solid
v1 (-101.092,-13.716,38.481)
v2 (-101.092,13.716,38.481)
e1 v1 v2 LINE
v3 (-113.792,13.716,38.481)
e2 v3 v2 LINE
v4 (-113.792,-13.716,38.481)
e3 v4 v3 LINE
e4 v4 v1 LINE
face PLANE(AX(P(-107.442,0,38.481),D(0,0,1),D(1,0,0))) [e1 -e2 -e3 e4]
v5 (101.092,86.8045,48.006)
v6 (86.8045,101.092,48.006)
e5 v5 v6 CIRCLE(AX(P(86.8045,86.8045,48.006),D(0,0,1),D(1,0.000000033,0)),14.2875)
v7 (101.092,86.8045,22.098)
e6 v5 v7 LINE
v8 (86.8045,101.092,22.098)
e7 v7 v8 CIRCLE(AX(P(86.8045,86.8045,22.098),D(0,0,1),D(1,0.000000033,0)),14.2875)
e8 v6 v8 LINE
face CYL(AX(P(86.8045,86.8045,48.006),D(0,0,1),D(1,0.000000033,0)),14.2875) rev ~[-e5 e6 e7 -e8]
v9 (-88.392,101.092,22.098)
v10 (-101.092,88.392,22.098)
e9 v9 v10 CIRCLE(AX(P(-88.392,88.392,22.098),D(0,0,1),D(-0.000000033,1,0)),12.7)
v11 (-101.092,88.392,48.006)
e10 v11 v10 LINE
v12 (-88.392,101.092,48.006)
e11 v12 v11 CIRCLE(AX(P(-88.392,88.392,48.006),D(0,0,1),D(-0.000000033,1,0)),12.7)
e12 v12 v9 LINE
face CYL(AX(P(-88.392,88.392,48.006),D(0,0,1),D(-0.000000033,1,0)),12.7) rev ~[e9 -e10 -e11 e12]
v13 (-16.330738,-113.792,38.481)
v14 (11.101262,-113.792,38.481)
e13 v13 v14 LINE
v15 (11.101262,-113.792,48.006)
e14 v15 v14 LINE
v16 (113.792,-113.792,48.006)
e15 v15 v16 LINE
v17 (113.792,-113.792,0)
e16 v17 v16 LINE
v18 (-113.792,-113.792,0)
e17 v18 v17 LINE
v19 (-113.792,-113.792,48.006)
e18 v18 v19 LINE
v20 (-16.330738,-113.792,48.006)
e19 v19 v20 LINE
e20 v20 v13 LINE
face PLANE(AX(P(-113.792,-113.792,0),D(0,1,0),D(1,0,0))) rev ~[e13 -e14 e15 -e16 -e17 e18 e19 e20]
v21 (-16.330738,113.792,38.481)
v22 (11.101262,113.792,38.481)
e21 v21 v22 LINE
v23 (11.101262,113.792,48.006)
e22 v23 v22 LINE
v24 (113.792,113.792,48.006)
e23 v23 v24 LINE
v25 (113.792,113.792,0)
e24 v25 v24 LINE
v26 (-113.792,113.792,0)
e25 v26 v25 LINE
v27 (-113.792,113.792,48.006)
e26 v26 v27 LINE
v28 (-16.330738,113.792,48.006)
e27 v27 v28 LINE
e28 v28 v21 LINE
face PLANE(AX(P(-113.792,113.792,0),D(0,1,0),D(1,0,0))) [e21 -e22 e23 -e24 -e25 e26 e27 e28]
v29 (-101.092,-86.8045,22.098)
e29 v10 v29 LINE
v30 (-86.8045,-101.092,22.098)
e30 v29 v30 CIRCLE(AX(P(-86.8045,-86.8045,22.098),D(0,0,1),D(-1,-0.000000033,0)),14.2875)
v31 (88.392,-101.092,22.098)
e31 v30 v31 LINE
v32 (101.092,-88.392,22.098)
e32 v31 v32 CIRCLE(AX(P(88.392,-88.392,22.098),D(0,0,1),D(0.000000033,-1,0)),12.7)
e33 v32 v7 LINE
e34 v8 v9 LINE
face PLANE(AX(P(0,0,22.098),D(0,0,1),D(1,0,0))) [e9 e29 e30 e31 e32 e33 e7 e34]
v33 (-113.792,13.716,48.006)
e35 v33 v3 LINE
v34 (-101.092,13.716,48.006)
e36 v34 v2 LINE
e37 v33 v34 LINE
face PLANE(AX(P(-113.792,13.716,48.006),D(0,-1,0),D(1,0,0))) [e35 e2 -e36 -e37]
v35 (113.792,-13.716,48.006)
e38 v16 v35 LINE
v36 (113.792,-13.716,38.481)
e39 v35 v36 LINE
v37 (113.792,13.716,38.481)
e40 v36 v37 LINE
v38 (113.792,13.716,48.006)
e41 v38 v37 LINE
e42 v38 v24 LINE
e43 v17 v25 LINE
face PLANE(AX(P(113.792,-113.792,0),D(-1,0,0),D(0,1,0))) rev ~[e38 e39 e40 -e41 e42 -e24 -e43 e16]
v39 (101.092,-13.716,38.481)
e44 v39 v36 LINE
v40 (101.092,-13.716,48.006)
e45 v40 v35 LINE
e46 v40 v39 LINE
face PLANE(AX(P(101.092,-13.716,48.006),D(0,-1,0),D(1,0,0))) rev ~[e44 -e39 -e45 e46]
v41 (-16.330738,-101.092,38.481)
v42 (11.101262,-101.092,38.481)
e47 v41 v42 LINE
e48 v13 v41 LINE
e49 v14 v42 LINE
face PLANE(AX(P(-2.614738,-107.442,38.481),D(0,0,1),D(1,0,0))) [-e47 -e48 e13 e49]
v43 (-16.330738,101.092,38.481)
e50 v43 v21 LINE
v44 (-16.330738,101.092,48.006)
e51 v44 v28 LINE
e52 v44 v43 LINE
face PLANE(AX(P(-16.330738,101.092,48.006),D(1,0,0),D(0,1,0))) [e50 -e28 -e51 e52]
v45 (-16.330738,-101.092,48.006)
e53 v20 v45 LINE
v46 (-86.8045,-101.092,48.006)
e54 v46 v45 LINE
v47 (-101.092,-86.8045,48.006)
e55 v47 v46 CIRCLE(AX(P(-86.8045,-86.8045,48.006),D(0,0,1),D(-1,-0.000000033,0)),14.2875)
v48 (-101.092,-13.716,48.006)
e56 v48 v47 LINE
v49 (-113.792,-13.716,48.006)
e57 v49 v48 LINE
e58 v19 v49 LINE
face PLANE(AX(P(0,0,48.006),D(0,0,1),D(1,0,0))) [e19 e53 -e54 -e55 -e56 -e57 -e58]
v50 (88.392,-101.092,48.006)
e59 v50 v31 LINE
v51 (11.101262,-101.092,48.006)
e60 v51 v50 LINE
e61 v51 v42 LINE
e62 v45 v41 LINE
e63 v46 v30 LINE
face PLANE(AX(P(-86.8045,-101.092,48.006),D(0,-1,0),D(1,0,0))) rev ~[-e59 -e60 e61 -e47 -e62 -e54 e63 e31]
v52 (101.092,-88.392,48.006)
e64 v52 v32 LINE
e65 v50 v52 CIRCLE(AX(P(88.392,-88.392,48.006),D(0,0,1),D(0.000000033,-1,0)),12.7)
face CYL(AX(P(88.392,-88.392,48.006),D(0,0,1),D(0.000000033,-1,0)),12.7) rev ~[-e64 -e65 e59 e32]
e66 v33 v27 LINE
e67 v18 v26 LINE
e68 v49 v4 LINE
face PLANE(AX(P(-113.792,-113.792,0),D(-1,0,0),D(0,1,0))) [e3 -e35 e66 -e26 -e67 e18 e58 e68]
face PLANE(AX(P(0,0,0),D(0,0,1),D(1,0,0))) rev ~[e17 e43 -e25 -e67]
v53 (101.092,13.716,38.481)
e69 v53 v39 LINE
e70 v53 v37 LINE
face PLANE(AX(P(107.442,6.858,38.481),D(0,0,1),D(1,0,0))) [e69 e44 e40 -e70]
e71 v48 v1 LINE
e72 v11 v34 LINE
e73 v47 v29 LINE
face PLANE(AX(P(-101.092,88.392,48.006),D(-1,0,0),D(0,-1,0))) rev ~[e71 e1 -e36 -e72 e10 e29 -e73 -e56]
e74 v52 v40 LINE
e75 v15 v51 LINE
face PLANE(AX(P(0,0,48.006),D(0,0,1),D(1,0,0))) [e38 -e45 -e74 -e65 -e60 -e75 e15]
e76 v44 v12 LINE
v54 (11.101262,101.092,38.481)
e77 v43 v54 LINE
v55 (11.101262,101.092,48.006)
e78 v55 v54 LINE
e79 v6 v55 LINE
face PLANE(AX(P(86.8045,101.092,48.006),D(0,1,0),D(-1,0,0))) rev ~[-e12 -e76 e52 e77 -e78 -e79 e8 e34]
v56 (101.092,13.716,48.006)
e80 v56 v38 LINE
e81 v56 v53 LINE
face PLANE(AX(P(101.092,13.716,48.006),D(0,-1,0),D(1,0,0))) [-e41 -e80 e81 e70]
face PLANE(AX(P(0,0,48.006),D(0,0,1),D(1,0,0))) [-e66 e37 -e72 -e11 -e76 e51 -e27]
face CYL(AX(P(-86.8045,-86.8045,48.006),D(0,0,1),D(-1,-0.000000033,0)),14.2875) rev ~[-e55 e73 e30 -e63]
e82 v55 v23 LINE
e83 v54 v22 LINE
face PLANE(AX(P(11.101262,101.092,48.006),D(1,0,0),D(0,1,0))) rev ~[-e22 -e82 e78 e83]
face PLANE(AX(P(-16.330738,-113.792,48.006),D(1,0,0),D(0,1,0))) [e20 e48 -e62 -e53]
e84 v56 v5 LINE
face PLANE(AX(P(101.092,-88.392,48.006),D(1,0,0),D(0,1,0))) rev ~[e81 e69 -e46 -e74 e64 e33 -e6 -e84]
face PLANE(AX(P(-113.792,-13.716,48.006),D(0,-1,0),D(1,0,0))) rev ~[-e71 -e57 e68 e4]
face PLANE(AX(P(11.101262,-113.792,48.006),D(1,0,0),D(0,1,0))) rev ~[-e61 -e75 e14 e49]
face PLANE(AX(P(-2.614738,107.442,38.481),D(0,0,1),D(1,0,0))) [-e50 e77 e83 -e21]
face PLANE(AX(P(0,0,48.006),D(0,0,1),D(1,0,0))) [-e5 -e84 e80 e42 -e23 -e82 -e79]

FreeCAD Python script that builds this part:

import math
import FreeCAD as App
import Part
import Sketcher
from FreeCAD import Vector
Q = App.Units.Quantity

doc = App.newDocument("Part")
body = doc.addObject("PartDesign::Body", "Body")

# Sketch on XY plane
sketch1 = body.newObject("Sketcher::SketchObject", "Sketch")
sketch1.AttachmentSupport = (doc.getObject("XY_Plane"), [""])
sketch1.MapMode = "FlatFace"
sketch1.addGeometry(Part.LineSegment(Vector(-114, 114, 0), Vector(-114, -114, 0)), False)
sketch1.addGeometry(Part.LineSegment(Vector(-114, -114, 0), Vector(114, -114, 0)), False)
sketch1.addGeometry(Part.LineSegment(Vector(114, -114, 0), Vector(114, 114, 0)), False)
sketch1.addGeometry(Part.LineSegment(Vector(114, 114, 0), Vector(-114, 114, 0)), False)
sketch1.addConstraint(Sketcher.Constraint("Coincident", 0, 2, 1, 1))
sketch1.addConstraint(Sketcher.Constraint("Coincident", 1, 2, 2, 1))
sketch1.addConstraint(Sketcher.Constraint("Coincident", 2, 2, 3, 1))
sketch1.addConstraint(Sketcher.Constraint("Coincident", 3, 2, 0, 1))
sketch1.addConstraint(Sketcher.Constraint("Vertical", 0))
sketch1.addConstraint(Sketcher.Constraint("Horizontal", 1))
sketch1.addConstraint(Sketcher.Constraint("Vertical", 2))
sketch1.addConstraint(Sketcher.Constraint("Horizontal", 3))
sketch1.addConstraint(Sketcher.Constraint("Symmetric", 0, 2, 2, 2, -1, 1))
sketch1.addConstraint(Sketcher.Constraint("Equal", 3, 0))
sketch1.addConstraint(Sketcher.Constraint("DistanceX", 1, 1, 1, 2, Q("8.96 in")))
pad1 = body.newObject("PartDesign::Pad", "Pad")
pad1.Profile = sketch1
pad1.Length = Q("1.89 in")

# Sketch on XY plane
sketch2 = body.newObject("Sketcher::SketchObject", "Sketch001")
sketch2.AttachmentSupport = (doc.getObject("XY_Plane"), [""])
sketch2.MapMode = "FlatFace"
sketch2.AttachmentOffset = App.Placement(Vector(0, 0, 1.89 * 25.4), App.Rotation())
sketch2.addGeometry(Part.LineSegment(Vector(87, 101, 0), Vector(-88, 101, 0)), False)
sketch2.addGeometry(Part.ArcOfCircle(Part.Circle(Vector(-88, 88, 0), Vector(0, 0, 1), 13), math.radians(90), math.radians(180)), False)
sketch2.addGeometry(Part.LineSegment(Vector(-101, 88, 0), Vector(-101, -87, 0)), False)
sketch2.addGeometry(Part.ArcOfCircle(Part.Circle(Vector(-87, -87, 0), Vector(0, 0, 1), 14), math.radians(-180), math.radians(-90)), False)
sketch2.addGeometry(Part.LineSegment(Vector(-87, -101, 0), Vector(88, -101, 0)), False)
sketch2.addGeometry(Part.ArcOfCircle(Part.Circle(Vector(88, -88, 0), Vector(0, 0, 1), 13), math.radians(-90), math.radians(0)), False)
sketch2.addGeometry(Part.LineSegment(Vector(101, -88, 0), Vector(101, 87, 0)), False)
sketch2.addGeometry(Part.ArcOfCircle(Part.Circle(Vector(87, 87, 0), Vector(0, 0, 1), 14), math.radians(0), math.radians(90)), False)
sketch2.addConstraint(Sketcher.Constraint("Tangent", 0, 2, 1, 1))
sketch2.addConstraint(Sketcher.Constraint("Tangent", 1, 2, 2, 1))
sketch2.addConstraint(Sketcher.Constraint("Tangent", 2, 2, 3, 1))
sketch2.addConstraint(Sketcher.Constraint("Tangent", 3, 2, 4, 1))
sketch2.addConstraint(Sketcher.Constraint("Tangent", 4, 2, 5, 1))
sketch2.addConstraint(Sketcher.Constraint("Tangent", 5, 2, 6, 1))
sketch2.addConstraint(Sketcher.Constraint("Tangent", 6, 2, 7, 1))
sketch2.addConstraint(Sketcher.Constraint("Tangent", 7, 2, 0, 1))
sketch2.addConstraint(Sketcher.Constraint("Horizontal", 0))
sketch2.addConstraint(Sketcher.Constraint("Vertical", 2))
sketch2.addConstraint(Sketcher.Constraint("Horizontal", 4))
sketch2.addConstraint(Sketcher.Constraint("Vertical", 6))
sketch2.addConstraint(Sketcher.Constraint("Equal", 1, 5))
sketch2.addConstraint(Sketcher.Constraint("Equal", 3, 7))
sketch2.addConstraint(Sketcher.Constraint("Symmetric", 1, 3, 5, 3, -1, 1))
sketch2.addConstraint(Sketcher.Constraint("Equal", 4, 2))
sketch2.addConstraint(Sketcher.Constraint("Radius", 1, Q("0.5 in")))
sketch2.addConstraint(Sketcher.Constraint("Radius", 3, Q("0.5625 in")))
sketch2.addConstraint(Sketcher.Constraint("DistanceX", 1, 3, -1, 1, Q("3.48 in")))
pocket1 = body.newObject("PartDesign::Pocket", "Pocket")
pocket1.Profile = sketch2
pocket1.Length = Q("1.02 in")

# Sketch on XY plane
sketch3 = body.newObject("Sketcher::SketchObject", "Sketch002")
sketch3.AttachmentSupport = (doc.getObject("XY_Plane"), [""])
sketch3.MapMode = "FlatFace"
sketch3.AttachmentOffset = App.Placement(Vector(0, 0, 1.89 * 25.4), App.Rotation())
sketch3.addGeometry(Part.LineSegment(Vector(-114, 14, 0), Vector(-114, -14, 0)), False)
sketch3.addGeometry(Part.LineSegment(Vector(-114, -14, 0), Vector(-101, -14, 0)), False)
sketch3.addGeometry(Part.LineSegment(Vector(-101, -14, 0), Vector(-101, 14, 0)), False)
sketch3.addGeometry(Part.LineSegment(Vector(-101, 14, 0), Vector(-114, 14, 0)), False)
sketch3.addGeometry(Part.LineSegment(Vector(-16, 114, 0), Vector(-16, 101, 0)), False)
sketch3.addGeometry(Part.LineSegment(Vector(-16, 101, 0), Vector(11, 101, 0)), False)
sketch3.addGeometry(Part.LineSegment(Vector(11, 101, 0), Vector(11, 114, 0)), False)
sketch3.addGeometry(Part.LineSegment(Vector(11, 114, 0), Vector(-16, 114, 0)), False)
sketch3.addGeometry(Part.LineSegment(Vector(101, 14, 0), Vector(101, -14, 0)), False)
sketch3.addGeometry(Part.LineSegment(Vector(101, -14, 0), Vector(114, -14, 0)), False)
sketch3.addGeometry(Part.LineSegment(Vector(114, -14, 0), Vector(114, 14, 0)), False)
sketch3.addGeometry(Part.LineSegment(Vector(114, 14, 0), Vector(101, 14, 0)), False)
sketch3.addGeometry(Part.LineSegment(Vector(-16, -101, 0), Vector(-16, -114, 0)), False)
sketch3.addGeometry(Part.LineSegment(Vector(-16, -114, 0), Vector(11, -114, 0)), False)
sketch3.addGeometry(Part.LineSegment(Vector(11, -114, 0), Vector(11, -101, 0)), False)
sketch3.addGeometry(Part.LineSegment(Vector(11, -101, 0), Vector(-16, -101, 0)), False)
sketch3.addConstraint(Sketcher.Constraint("Coincident", 0, 2, 1, 1))
sketch3.addConstraint(Sketcher.Constraint("Coincident", 1, 2, 2, 1))
sketch3.addConstraint(Sketcher.Constraint("Coincident", 2, 2, 3, 1))
sketch3.addConstraint(Sketcher.Constraint("Coincident", 3, 2, 0, 1))
sketch3.addConstraint(Sketcher.Constraint("Coincident", 4, 2, 5, 1))
sketch3.addConstraint(Sketcher.Constraint("Coincident", 5, 2, 6, 1))
sketch3.addConstraint(Sketcher.Constraint("Coincident", 6, 2, 7, 1))
sketch3.addConstraint(Sketcher.Constraint("Coincident", 7, 2, 4, 1))
sketch3.addConstraint(Sketcher.Constraint("Coincident", 8, 2, 9, 1))
sketch3.addConstraint(Sketcher.Constraint("Coincident", 9, 2, 10, 1))
sketch3.addConstraint(Sketcher.Constraint("Coincident", 10, 2, 11, 1))
sketch3.addConstraint(Sketcher.Constraint("Coincident", 11, 2, 8, 1))
sketch3.addConstraint(Sketcher.Constraint("Coincident", 12, 2, 13, 1))
sketch3.addConstraint(Sketcher.Constraint("Coincident", 13, 2, 14, 1))
sketch3.addConstraint(Sketcher.Constraint("Coincident", 14, 2, 15, 1))
sketch3.addConstraint(Sketcher.Constraint("Coincident", 15, 2, 12, 1))
sketch3.addConstraint(Sketcher.Constraint("Vertical", 0))
sketch3.addConstraint(Sketcher.Constraint("Horizontal", 1))
sketch3.addConstraint(Sketcher.Constraint("Vertical", 2))
sketch3.addConstraint(Sketcher.Constraint("Horizontal", 3))
sketch3.addConstraint(Sketcher.Constraint("Vertical", 4))
sketch3.addConstraint(Sketcher.Constraint("Horizontal", 5))
sketch3.addConstraint(Sketcher.Constraint("Vertical", 6))
sketch3.addConstraint(Sketcher.Constraint("Horizontal", 7))
sketch3.addConstraint(Sketcher.Constraint("Vertical", 8))
sketch3.addConstraint(Sketcher.Constraint("Horizontal", 9))
sketch3.addConstraint(Sketcher.Constraint("Vertical", 10))
sketch3.addConstraint(Sketcher.Constraint("Horizontal", 11))
sketch3.addConstraint(Sketcher.Constraint("Vertical", 12))
sketch3.addConstraint(Sketcher.Constraint("Horizontal", 13))
sketch3.addConstraint(Sketcher.Constraint("Vertical", 14))
sketch3.addConstraint(Sketcher.Constraint("Horizontal", 15))
sketch3.addConstraint(Sketcher.Constraint("Symmetric", 2, 2, 8, 2, -1, 1))
sketch3.addConstraint(Sketcher.Constraint("Symmetric", 0, 2, 10, 2, -1, 1))
sketch3.addConstraint(Sketcher.Constraint("Symmetric", 7, 2, 12, 2, -1))
sketch3.addConstraint(Sketcher.Constraint("Symmetric", 5, 2, 14, 2, -1))
sketch3.addConstraint(Sketcher.Constraint("Horizontal", 1, 2, 8, 2))
sketch3.addConstraint(Sketcher.Constraint("Equal", 15, 0))
sketch3.addConstraint(Sketcher.Constraint("Equal", 11, 4))
sketch3.addConstraint(Sketcher.Constraint("DistanceX", 1, 1, 1, 2, Q("0.5 in")))
sketch3.addConstraint(Sketcher.Constraint("DistanceX", 5, 1, 5, 2, Q("1.08 in")))
sketch3.addConstraint(Sketcher.Constraint("DistanceX", 0, 2, -1, 1, Q("4.48 in")))
sketch3.addConstraint(Sketcher.Constraint("DistanceY", -1, 1, 4, 2, Q("3.98 in")))
sketch3.addConstraint(Sketcher.Constraint("DistanceX", 4, 2, -1, 1, 16.330738))
pocket2 = body.newObject("PartDesign::Pocket", "Pocket001")
pocket2.Profile = sketch3
pocket2.Length = Q("0.375 in")

doc.recompute()
